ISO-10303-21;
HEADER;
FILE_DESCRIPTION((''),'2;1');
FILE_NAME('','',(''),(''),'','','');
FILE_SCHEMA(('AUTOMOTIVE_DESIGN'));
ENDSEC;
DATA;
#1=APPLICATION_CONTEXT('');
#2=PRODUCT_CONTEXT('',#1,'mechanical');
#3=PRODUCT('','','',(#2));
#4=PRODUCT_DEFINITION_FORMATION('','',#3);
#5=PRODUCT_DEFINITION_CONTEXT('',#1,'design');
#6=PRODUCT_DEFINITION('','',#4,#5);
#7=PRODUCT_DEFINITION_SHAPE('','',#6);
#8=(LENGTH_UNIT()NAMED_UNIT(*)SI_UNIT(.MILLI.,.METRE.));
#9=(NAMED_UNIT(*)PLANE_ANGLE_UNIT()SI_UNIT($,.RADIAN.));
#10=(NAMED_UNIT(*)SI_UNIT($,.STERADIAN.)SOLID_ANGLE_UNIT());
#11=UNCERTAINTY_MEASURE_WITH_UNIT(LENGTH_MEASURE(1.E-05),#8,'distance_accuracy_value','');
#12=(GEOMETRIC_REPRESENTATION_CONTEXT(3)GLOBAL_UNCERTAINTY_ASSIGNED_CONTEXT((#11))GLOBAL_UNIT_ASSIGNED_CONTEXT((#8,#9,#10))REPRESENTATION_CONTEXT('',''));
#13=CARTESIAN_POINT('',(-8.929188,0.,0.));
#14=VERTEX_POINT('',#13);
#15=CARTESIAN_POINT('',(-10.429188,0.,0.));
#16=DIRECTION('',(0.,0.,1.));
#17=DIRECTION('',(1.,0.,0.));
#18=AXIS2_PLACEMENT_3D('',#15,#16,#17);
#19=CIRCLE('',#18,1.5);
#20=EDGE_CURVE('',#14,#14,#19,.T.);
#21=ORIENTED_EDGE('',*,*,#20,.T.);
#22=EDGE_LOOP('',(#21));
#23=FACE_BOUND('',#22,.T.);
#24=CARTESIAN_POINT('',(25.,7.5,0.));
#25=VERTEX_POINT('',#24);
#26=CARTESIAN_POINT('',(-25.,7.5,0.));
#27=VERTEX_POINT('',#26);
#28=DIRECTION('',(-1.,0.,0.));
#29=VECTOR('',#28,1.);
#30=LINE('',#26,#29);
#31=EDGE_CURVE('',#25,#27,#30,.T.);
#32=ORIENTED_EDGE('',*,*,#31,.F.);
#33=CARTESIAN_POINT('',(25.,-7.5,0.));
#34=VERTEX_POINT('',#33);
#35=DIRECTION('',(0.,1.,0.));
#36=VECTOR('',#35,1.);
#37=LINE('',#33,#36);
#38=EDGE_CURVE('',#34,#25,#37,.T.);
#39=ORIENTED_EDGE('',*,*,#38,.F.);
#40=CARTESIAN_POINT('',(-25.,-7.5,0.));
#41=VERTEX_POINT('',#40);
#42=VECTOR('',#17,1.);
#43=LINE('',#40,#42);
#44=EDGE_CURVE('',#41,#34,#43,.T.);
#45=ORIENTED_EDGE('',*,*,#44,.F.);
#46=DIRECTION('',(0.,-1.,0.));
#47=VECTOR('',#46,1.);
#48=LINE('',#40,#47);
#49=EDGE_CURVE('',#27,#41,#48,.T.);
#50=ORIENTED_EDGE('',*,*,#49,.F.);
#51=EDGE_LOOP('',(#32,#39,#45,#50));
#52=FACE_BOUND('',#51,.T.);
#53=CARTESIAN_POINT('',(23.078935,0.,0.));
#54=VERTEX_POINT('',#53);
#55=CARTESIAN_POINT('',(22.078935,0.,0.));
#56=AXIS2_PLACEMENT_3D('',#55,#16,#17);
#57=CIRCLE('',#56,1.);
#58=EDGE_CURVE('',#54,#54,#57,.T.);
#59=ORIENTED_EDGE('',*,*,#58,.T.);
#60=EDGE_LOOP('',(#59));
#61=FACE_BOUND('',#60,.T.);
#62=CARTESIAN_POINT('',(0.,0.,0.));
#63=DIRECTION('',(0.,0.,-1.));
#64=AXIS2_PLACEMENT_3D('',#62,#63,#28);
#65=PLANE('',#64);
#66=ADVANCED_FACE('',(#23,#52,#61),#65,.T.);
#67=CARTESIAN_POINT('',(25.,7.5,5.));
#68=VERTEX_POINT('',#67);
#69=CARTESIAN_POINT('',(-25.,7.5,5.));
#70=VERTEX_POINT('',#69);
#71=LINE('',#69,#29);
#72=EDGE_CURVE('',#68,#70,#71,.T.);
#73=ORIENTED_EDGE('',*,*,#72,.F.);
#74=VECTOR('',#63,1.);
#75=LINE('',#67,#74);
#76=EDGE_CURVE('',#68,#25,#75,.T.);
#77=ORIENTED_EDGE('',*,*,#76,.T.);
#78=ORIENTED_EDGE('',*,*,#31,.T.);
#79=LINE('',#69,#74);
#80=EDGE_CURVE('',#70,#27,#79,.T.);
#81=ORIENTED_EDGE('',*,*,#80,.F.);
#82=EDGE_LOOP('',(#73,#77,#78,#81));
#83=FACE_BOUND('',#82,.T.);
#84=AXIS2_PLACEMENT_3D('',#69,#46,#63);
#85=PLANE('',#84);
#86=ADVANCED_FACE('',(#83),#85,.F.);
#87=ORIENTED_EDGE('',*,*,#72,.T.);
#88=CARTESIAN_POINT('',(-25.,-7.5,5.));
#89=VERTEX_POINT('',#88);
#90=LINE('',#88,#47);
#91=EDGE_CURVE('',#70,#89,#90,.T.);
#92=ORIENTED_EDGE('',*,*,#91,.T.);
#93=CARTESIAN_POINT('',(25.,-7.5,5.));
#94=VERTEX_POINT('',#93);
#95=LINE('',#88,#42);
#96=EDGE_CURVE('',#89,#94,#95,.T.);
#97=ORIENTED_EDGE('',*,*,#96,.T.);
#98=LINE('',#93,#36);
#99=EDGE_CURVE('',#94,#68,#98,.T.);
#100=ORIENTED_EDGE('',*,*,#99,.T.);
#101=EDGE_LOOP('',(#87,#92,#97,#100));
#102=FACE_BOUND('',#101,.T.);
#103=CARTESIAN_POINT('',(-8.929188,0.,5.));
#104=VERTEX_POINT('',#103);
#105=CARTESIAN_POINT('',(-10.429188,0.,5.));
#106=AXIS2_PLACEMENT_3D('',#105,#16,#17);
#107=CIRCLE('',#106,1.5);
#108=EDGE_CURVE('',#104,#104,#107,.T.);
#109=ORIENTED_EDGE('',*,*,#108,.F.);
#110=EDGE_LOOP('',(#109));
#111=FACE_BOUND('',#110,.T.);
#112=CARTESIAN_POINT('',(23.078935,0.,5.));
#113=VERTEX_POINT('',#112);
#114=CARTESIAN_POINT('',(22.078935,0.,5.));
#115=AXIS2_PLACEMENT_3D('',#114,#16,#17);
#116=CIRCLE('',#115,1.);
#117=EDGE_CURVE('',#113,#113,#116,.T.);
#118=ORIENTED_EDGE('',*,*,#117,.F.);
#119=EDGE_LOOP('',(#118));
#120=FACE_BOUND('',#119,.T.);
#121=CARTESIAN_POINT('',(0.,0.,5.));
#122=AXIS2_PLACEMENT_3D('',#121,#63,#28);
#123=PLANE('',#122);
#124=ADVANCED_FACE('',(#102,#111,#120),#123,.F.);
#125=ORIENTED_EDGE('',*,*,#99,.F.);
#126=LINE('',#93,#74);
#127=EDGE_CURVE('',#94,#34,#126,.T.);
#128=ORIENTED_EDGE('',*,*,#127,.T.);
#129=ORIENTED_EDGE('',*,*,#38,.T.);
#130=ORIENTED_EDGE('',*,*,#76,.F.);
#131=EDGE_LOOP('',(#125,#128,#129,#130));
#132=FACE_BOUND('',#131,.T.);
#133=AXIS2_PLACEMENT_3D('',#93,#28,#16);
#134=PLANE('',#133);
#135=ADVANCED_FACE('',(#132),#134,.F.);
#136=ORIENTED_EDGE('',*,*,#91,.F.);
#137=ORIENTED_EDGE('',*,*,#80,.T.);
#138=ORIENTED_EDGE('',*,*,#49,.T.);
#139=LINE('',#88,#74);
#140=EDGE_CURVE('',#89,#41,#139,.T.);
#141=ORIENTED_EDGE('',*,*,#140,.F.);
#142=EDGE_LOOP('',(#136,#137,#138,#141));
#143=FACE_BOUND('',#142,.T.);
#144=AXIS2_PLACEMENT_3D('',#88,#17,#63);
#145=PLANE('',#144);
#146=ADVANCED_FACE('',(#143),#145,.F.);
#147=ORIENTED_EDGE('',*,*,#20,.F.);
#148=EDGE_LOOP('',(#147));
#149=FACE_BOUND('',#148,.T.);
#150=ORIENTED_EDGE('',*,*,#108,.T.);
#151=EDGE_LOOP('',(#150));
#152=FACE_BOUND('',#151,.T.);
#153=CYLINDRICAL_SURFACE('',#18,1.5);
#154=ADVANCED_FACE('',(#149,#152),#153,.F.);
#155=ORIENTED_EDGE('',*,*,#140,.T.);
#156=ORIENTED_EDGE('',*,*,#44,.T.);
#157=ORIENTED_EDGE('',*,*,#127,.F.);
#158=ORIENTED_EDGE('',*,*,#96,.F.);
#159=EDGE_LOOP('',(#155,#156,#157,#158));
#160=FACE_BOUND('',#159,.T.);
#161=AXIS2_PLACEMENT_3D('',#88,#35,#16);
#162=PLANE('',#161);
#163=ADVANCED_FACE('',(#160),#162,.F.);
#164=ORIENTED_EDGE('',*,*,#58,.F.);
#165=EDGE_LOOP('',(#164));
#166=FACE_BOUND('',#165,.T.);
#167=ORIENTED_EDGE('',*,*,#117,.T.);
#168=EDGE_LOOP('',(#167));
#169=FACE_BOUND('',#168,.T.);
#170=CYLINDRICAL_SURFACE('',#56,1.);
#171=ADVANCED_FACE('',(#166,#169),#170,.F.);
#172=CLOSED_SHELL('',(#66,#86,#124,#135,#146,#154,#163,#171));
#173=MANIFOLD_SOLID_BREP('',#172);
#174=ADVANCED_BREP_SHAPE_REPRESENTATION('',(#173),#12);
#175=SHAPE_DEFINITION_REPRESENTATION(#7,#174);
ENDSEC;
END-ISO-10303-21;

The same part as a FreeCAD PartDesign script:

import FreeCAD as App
import Part
import Sketcher
from FreeCAD import Vector
Q = App.Units.Quantity


def add_polygon(sketch, points):
    """Adds a closed chain of lines whose ends are joined by coincident constraints."""
    first, n = sketch.GeometryCount, len(points)
    for a, b in zip(points, points[1:] + points[:1]):
        sketch.addGeometry(Part.LineSegment(App.Vector(*a, 0), App.Vector(*b, 0)), False)
    for i in range(n):
        sketch.addConstraint(Sketcher.Constraint("Coincident", first + i, 2, first + (i + 1) % n, 1))

doc = App.newDocument("Part")
body = doc.addObject("PartDesign::Body", "Body")

sketch1 = body.newObject("Sketcher::SketchObject", "Sketch")
sketch1.AttachmentSupport = (doc.getObject("XY_Plane"), [""])
sketch1.MapMode = "FlatFace"
add_polygon(sketch1, [(-25, 8), (-25, -8), (25, -8), (25, 8)])
sketch1.addConstraint(Sketcher.Constraint("Vertical", 0))
sketch1.addConstraint(Sketcher.Constraint("Horizontal", 1))
sketch1.addConstraint(Sketcher.Constraint("Vertical", 2))
sketch1.addConstraint(Sketcher.Constraint("Horizontal", 3))
sketch1.addConstraint(Sketcher.Constraint("Symmetric", 0, 2, 2, 2, -1, 1))
sketch1.addConstraint(Sketcher.Constraint("DistanceX", 1, 1, 1, 2, Q("50 mm")))
sketch1.addConstraint(Sketcher.Constraint("DistanceY", 0, 2, 0, 1, Q("15 mm")))
pad1 = body.newObject("PartDesign::Pad", "Pad")
pad1.Profile = sketch1
pad1.Length = 5

sketch2 = body.newObject("Sketcher::SketchObject", "Sketch001")
sketch2.AttachmentSupport = (doc.getObject("XY_Plane"), [""])
sketch2.MapMode = "FlatFace"
sketch2.AttachmentOffset = App.Placement(Vector(0, 0, 5), App.Rotation())
sketch2.addGeometry(Part.Circle(Vector(-10.4, 0, 0), Vector(0, 0, 1), 1.5), False)
sketch2.addConstraint(Sketcher.Constraint("PointOnObject", 0, 3, -1))
sketch2.addConstraint(Sketcher.Constraint("Diameter", 0, Q("3 mm")))
sketch2.addConstraint(Sketcher.Constraint("DistanceX", 0, 3, -1, 1, Q("10.429188 mm")))
pocket1 = body.newObject("PartDesign::Pocket", "Pocket")
pocket1.Profile = sketch2
pocket1.Type = "ThroughAll"

sketch3 = body.newObject("Sketcher::SketchObject", "Sketch002")
sketch3.AttachmentSupport = (doc.getObject("XY_Plane"), [""])
sketch3.MapMode = "FlatFace"
sketch3.AttachmentOffset = App.Placement(Vector(0, 0, 5), App.Rotation())
sketch3.addGeometry(Part.Circle(Vector(22.1, 0, 0), Vector(0, 0, 1), 1), False)
sketch3.addConstraint(Sketcher.Constraint("PointOnObject", 0, 3, -1))
sketch3.addConstraint(Sketcher.Constraint("Diameter", 0, Q("2 mm")))
sketch3.addConstraint(Sketcher.Constraint("DistanceX", -1, 1, 0, 3, Q("22.078935 mm")))
pocket2 = body.newObject("PartDesign::Pocket", "Pocket001")
pocket2.Profile = sketch3
pocket2.Type = "ThroughAll"

doc.recompute()
